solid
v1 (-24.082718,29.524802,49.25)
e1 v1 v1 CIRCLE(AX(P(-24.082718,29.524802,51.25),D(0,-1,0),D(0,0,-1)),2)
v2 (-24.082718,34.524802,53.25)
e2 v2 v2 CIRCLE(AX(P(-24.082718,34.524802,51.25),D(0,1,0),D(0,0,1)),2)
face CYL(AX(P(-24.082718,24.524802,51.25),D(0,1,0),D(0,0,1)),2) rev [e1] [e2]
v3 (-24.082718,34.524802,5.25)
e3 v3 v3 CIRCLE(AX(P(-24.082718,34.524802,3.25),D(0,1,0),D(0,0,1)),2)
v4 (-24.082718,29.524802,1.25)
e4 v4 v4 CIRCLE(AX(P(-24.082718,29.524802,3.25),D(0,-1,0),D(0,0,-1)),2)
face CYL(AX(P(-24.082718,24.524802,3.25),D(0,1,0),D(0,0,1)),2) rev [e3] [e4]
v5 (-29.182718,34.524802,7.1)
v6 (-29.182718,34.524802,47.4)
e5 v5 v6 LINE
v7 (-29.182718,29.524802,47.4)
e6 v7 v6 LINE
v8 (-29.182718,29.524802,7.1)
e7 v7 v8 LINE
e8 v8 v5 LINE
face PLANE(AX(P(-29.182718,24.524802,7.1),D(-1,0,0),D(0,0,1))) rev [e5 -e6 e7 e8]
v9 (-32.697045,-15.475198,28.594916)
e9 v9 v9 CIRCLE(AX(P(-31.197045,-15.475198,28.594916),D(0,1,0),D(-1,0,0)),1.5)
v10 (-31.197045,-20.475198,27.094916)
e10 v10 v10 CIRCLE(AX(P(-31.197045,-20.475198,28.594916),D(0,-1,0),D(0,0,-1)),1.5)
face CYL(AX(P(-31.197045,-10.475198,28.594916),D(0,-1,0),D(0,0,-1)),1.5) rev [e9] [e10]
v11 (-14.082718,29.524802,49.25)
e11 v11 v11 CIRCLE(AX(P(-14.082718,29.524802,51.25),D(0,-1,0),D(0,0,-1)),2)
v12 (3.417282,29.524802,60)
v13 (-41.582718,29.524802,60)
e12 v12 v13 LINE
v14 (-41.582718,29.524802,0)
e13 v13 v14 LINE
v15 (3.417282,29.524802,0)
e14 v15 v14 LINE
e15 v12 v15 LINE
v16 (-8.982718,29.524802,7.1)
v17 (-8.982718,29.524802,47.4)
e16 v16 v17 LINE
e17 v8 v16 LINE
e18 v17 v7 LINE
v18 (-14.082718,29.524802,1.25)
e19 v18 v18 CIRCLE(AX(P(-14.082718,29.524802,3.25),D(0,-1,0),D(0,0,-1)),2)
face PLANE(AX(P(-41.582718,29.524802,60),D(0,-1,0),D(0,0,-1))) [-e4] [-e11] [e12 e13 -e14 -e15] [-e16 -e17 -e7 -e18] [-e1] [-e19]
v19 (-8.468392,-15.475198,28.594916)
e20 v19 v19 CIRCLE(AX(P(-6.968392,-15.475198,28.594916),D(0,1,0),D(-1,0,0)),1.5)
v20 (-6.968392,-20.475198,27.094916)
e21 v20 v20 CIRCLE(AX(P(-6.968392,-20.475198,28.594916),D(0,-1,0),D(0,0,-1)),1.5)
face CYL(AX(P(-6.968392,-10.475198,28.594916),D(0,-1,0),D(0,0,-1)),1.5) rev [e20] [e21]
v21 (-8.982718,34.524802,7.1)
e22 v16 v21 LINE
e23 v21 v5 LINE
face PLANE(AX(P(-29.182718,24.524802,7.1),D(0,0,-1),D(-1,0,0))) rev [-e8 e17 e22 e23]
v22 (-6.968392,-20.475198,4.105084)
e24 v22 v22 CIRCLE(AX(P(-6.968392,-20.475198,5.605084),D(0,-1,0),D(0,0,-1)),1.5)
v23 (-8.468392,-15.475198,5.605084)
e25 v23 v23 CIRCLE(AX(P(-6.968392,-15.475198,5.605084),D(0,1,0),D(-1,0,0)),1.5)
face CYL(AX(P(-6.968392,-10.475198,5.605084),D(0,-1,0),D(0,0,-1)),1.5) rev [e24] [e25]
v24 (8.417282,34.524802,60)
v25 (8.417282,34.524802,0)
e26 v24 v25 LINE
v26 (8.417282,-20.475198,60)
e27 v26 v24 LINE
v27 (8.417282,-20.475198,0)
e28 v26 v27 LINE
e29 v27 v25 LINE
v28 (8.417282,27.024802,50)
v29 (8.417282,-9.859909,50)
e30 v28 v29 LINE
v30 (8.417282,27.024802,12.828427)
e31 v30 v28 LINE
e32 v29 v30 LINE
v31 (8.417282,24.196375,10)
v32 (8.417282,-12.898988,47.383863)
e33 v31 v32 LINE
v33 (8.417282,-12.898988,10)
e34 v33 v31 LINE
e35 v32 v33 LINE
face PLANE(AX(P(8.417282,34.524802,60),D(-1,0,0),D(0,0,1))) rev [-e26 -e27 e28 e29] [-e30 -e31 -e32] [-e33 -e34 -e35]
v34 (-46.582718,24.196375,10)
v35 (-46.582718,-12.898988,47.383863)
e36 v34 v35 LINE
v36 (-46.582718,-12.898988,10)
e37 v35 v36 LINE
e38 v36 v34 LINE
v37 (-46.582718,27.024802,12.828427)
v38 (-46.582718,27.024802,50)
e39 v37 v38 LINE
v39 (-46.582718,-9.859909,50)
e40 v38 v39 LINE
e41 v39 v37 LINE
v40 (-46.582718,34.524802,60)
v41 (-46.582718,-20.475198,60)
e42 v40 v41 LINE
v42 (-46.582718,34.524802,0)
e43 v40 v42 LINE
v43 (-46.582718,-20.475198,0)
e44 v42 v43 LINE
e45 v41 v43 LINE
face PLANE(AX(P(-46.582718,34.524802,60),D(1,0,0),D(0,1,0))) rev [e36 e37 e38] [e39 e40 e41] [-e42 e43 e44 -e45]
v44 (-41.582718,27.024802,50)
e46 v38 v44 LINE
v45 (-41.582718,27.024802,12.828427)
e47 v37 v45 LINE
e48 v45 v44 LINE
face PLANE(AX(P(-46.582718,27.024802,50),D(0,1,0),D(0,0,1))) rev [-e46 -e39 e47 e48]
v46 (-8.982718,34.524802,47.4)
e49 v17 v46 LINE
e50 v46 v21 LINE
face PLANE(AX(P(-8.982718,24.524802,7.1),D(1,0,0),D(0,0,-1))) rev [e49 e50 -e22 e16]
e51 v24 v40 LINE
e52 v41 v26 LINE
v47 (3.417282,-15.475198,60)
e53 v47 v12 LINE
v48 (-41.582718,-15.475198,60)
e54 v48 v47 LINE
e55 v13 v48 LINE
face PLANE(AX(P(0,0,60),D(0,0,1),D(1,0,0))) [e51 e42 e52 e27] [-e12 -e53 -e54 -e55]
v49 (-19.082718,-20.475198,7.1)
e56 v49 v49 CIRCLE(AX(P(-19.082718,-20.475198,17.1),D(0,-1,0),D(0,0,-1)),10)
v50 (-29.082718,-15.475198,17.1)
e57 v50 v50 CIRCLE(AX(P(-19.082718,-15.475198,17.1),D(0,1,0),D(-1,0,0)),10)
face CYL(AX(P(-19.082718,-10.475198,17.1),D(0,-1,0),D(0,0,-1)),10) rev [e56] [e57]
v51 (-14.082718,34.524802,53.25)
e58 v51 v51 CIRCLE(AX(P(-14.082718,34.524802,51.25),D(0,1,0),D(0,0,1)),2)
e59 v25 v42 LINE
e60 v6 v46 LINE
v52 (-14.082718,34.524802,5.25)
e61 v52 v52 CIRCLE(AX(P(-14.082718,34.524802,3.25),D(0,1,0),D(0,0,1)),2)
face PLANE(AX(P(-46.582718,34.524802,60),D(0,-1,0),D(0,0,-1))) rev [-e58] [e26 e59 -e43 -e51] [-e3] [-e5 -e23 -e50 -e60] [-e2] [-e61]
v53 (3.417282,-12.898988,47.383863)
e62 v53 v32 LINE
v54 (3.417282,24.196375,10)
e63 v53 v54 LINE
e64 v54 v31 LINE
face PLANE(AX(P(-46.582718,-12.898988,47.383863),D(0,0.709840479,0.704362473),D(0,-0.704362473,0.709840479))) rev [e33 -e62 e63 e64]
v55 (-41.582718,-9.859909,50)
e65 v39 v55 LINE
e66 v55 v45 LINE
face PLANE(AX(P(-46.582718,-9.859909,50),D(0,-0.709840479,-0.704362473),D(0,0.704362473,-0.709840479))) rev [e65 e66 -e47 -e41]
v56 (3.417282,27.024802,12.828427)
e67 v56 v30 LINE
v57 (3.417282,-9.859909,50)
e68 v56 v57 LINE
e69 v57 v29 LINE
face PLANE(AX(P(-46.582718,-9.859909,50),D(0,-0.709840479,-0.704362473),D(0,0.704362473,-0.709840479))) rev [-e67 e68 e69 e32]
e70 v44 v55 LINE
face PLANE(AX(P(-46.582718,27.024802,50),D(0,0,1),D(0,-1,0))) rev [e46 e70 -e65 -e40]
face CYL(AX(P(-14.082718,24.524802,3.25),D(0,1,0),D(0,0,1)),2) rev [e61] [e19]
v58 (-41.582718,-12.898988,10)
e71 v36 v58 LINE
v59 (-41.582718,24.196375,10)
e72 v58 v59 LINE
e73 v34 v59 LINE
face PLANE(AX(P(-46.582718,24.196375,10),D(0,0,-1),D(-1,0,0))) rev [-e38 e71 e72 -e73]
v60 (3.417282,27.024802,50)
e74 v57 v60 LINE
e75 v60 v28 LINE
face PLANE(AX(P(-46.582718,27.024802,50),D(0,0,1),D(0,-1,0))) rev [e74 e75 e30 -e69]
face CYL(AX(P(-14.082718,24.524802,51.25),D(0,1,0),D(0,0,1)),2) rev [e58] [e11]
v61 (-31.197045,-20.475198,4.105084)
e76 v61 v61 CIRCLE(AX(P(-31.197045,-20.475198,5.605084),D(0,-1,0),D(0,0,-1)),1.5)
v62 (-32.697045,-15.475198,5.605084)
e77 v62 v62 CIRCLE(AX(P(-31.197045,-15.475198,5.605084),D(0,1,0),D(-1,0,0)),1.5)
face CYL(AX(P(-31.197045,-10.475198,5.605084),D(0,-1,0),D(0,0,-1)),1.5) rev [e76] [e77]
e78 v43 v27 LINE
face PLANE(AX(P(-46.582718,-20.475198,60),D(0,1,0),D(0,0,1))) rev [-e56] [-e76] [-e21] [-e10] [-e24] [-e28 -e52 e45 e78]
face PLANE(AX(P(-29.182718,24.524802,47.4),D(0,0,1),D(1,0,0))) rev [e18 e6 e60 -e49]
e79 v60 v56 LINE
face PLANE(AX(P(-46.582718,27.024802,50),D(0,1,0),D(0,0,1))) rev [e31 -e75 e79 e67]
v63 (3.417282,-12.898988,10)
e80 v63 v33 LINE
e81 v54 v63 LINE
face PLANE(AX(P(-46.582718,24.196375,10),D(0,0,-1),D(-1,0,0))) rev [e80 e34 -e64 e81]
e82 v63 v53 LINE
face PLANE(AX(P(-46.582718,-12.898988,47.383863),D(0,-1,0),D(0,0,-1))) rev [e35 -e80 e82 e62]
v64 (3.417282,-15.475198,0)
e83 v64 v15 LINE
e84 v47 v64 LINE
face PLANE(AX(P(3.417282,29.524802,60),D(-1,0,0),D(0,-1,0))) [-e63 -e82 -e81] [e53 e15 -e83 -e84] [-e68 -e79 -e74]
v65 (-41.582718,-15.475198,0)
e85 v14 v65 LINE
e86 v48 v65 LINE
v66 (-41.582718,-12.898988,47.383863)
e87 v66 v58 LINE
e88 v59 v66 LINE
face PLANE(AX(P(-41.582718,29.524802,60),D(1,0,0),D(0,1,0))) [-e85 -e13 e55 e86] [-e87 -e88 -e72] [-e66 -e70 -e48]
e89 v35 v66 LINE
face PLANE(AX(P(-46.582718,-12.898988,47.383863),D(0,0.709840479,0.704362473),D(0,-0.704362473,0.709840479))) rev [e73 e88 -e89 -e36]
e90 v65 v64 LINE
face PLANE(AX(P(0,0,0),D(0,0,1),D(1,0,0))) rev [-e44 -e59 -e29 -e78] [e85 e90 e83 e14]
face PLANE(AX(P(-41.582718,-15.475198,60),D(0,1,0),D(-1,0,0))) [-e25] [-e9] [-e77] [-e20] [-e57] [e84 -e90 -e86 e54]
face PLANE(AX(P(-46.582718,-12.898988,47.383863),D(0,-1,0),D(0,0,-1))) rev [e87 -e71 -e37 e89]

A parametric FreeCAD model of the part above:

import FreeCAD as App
import Part
import Sketcher
from FreeCAD import Vector

doc = App.newDocument("Part")
body = doc.addObject("PartDesign::Body", "Body")

sketch1 = doc.addObject("Sketcher::SketchObject", "Sketch")
body.addObject(sketch1)
sketch1.AttachmentSupport = (doc.XY_Plane, [""])
sketch1.MapMode = "FlatFace"
sketch1.addGeometry(Part.LineSegment(Vector(-47, 35, 0), Vector(-47, -20, 0)), False)
sketch1.addGeometry(Part.LineSegment(Vector(-47, -20, 0), Vector(8, -20, 0)), False)
sketch1.addGeometry(Part.LineSegment(Vector(8, -20, 0), Vector(8, 35, 0)), False)
sketch1.addGeometry(Part.LineSegment(Vector(8, 35, 0), Vector(-47, 35, 0)), False)
sketch1.addGeometry(Part.LineSegment(Vector(3, -15, 0), Vector(-42, -15, 0)), False)
sketch1.addGeometry(Part.LineSegment(Vector(-42, -15, 0), Vector(-42, 30, 0)), False)
sketch1.addGeometry(Part.LineSegment(Vector(-42, 30, 0), Vector(3, 30, 0)), False)
sketch1.addGeometry(Part.LineSegment(Vector(3, 30, 0), Vector(3, -15, 0)), False)
sketch1.addConstraint(Sketcher.Constraint("Coincident", 0, 2, 1, 1))
sketch1.addConstraint(Sketcher.Constraint("Coincident", 1, 2, 2, 1))
sketch1.addConstraint(Sketcher.Constraint("Coincident", 2, 2, 3, 1))
sketch1.addConstraint(Sketcher.Constraint("Coincident", 3, 2, 0, 1))
sketch1.addConstraint(Sketcher.Constraint("Coincident", 4, 2, 5, 1))
sketch1.addConstraint(Sketcher.Constraint("Coincident", 5, 2, 6, 1))
sketch1.addConstraint(Sketcher.Constraint("Coincident", 6, 2, 7, 1))
sketch1.addConstraint(Sketcher.Constraint("Coincident", 7, 2, 4, 1))
sketch1.addConstraint(Sketcher.Constraint("Vertical", 0))
sketch1.addConstraint(Sketcher.Constraint("Horizontal", 1))
sketch1.addConstraint(Sketcher.Constraint("Vertical", 2))
sketch1.addConstraint(Sketcher.Constraint("Horizontal", 3))
sketch1.addConstraint(Sketcher.Constraint("Horizontal", 4))
sketch1.addConstraint(Sketcher.Constraint("Vertical", 5))
sketch1.addConstraint(Sketcher.Constraint("Horizontal", 6))
sketch1.addConstraint(Sketcher.Constraint("Vertical", 7))
sketch1.addConstraint(Sketcher.Constraint("Equal", 3, 0))
sketch1.addConstraint(Sketcher.Constraint("Equal", 6, 5))
sketch1.addConstraint(Sketcher.Constraint("DistanceX", 1, 1, 1, 2, 55.0))
sketch1.addConstraint(Sketcher.Constraint("DistanceX", 4, 2, 4, 1, 45.0))
sketch1.addConstraint(Sketcher.Constraint("DistanceX", 0, 2, 4, 2, 5.0))
sketch1.addConstraint(Sketcher.Constraint("DistanceY", 0, 2, 4, 2, 5.0))
sketch1.addConstraint(Sketcher.Constraint("DistanceX", 0, 2, -1, 1, 46.582718))
sketch1.addConstraint(Sketcher.Constraint("DistanceY", 0, 2, -1, 1, 20.475198))
pad1 = doc.addObject("PartDesign::Pad", "Pad")
body.addObject(pad1)
pad1.Profile = sketch1
pad1.Length = 60

sketch2 = doc.addObject("Sketcher::SketchObject", "Sketch001")
body.addObject(sketch2)
sketch2.AttachmentSupport = (doc.XZ_Plane, [""])
sketch2.MapMode = "FlatFace"
sketch2.AttachmentOffset = App.Placement(Vector(0, 0, -34.524802), App.Rotation())
sketch2.addGeometry(Part.Circle(Vector(-24.1, 3.2, 0), Vector(0, 0, 1), 2), False)
sketch2.addGeometry(Part.Circle(Vector(-14.1, 3.2, 0), Vector(0, 0, 1), 2), False)
sketch2.addGeometry(Part.Circle(Vector(-24.1, 51.2, 0), Vector(0, 0, 1), 2), False)
sketch2.addGeometry(Part.Circle(Vector(-14.1, 51.2, 0), Vector(0, 0, 1), 2), False)
sketch2.addGeometry(Part.LineSegment(Vector(-29.2, 7.1, 0), Vector(-29.2, 47.4, 0)), False)
sketch2.addGeometry(Part.LineSegment(Vector(-29.2, 47.4, 0), Vector(-9, 47.4, 0)), False)
sketch2.addGeometry(Part.LineSegment(Vector(-9, 47.4, 0), Vector(-9, 7.1, 0)), False)
sketch2.addGeometry(Part.LineSegment(Vector(-9, 7.1, 0), Vector(-29.2, 7.1, 0)), False)
sketch2.addConstraint(Sketcher.Constraint("Coincident", 4, 2, 5, 1))
sketch2.addConstraint(Sketcher.Constraint("Coincident", 5, 2, 6, 1))
sketch2.addConstraint(Sketcher.Constraint("Coincident", 6, 2, 7, 1))
sketch2.addConstraint(Sketcher.Constraint("Coincident", 7, 2, 4, 1))
sketch2.addConstraint(Sketcher.Constraint("Vertical", 4))
sketch2.addConstraint(Sketcher.Constraint("Horizontal", 5))
sketch2.addConstraint(Sketcher.Constraint("Vertical", 6))
sketch2.addConstraint(Sketcher.Constraint("Horizontal", 7))
sketch2.addConstraint(Sketcher.Constraint("Equal", 0, 1))
sketch2.addConstraint(Sketcher.Constraint("Equal", 1, 2))
sketch2.addConstraint(Sketcher.Constraint("Equal", 2, 3))
sketch2.addConstraint(Sketcher.Constraint("Horizontal", 0, 3, 1, 3))
sketch2.addConstraint(Sketcher.Constraint("Horizontal", 2, 3, 3, 3))
sketch2.addConstraint(Sketcher.Constraint("Vertical", 0, 3, 2, 3))
sketch2.addConstraint(Sketcher.Constraint("Vertical", 1, 3, 3, 3))
sketch2.addConstraint(Sketcher.Constraint("Diameter", 0, 4.0))
sketch2.addConstraint(Sketcher.Constraint("DistanceX", 5, 1, 5, 2, 20.2))
sketch2.addConstraint(Sketcher.Constraint("DistanceY", 4, 1, 4, 2, 40.3))
sketch2.addConstraint(Sketcher.Constraint("DistanceX", 0, 3, 1, 3, 10.0))
sketch2.addConstraint(Sketcher.Constraint("DistanceY", 0, 3, 2, 3, 48.0))
sketch2.addConstraint(Sketcher.Constraint("DistanceY", -1, 1, 4, 2, 47.4))
sketch2.addConstraint(Sketcher.Constraint("DistanceX", 4, 2, 2, 3, 5.1))
sketch2.addConstraint(Sketcher.Constraint("DistanceY", -1, 1, 0, 3, 3.25))
sketch2.addConstraint(Sketcher.Constraint("DistanceX", 0, 3, -1, 1, 24.082718))
pocket1 = doc.addObject("PartDesign::Pocket", "Pocket")
body.addObject(pocket1)
pocket1.Profile = sketch2
pocket1.Length = 10
pocket1.Reversed = True

sketch3 = doc.addObject("Sketcher::SketchObject", "Sketch002")
body.addObject(sketch3)
sketch3.AttachmentSupport = (doc.XZ_Plane, [""])
sketch3.MapMode = "FlatFace"
sketch3.AttachmentOffset = App.Placement(Vector(0, 0, 20.475198), App.Rotation())
sketch3.addGeometry(Part.Circle(Vector(-19.1, 17.1, 0), Vector(0, 0, 1), 10), False)
sketch3.addGeometry(Part.Circle(Vector(-31.2, 5.6, 0), Vector(0, 0, 1), 1.5), False)
sketch3.addGeometry(Part.Circle(Vector(-7, 5.6, 0), Vector(0, 0, 1), 1.5), False)
sketch3.addGeometry(Part.Circle(Vector(-31.2, 28.6, 0), Vector(0, 0, 1), 1.5), False)
sketch3.addGeometry(Part.Circle(Vector(-7, 28.6, 0), Vector(0, 0, 1), 1.5), False)
sketch3.addConstraint(Sketcher.Constraint("Equal", 1, 2))
sketch3.addConstraint(Sketcher.Constraint("Equal", 2, 3))
sketch3.addConstraint(Sketcher.Constraint("Equal", 3, 4))
sketch3.addConstraint(Sketcher.Constraint("Horizontal", 1, 3, 2, 3))
sketch3.addConstraint(Sketcher.Constraint("Horizontal", 3, 3, 4, 3))
sketch3.addConstraint(Sketcher.Constraint("Vertical", 1, 3, 3, 3))
sketch3.addConstraint(Sketcher.Constraint("Vertical", 2, 3, 4, 3))
sketch3.addConstraint(Sketcher.Constraint("Diameter", 0, 20.0))
sketch3.addConstraint(Sketcher.Constraint("Diameter", 1, 3.0))
sketch3.addConstraint(Sketcher.Constraint("DistanceY", -1, 1, 0, 3, 17.1))
sketch3.addConstraint(Sketcher.Constraint("DistanceX", 0, 3, -1, 1, 19.082718))
sketch3.addConstraint(Sketcher.Constraint("DistanceX", 2, 3, -1, 1, 6.968392))
sketch3.addConstraint(Sketcher.Constraint("DistanceY", 1, 3, 3, 3, 22.989832))
sketch3.addConstraint(Sketcher.Constraint("DistanceX", 1, 3, -1, 1, 31.197045))
sketch3.addConstraint(Sketcher.Constraint("DistanceY", -1, 1, 1, 3, 5.605084))
pocket2 = doc.addObject("PartDesign::Pocket", "Pocket001")
body.addObject(pocket2)
pocket2.Profile = sketch3
pocket2.Length = 10

sketch4 = doc.addObject("Sketcher::SketchObject", "Sketch003")
body.addObject(sketch4)
sketch4.AttachmentSupport = (doc.YZ_Plane, [""])
sketch4.MapMode = "FlatFace"
sketch4.AttachmentOffset = App.Placement(Vector(0, 0, 8.417282), App.Rotation())
sketch4.addGeometry(Part.LineSegment(Vector(27, 13, 0), Vector(27, 50, 0)), False)
sketch4.addGeometry(Part.LineSegment(Vector(27, 50, 0), Vector(-10, 50, 0)), False)
sketch4.addGeometry(Part.LineSegment(Vector(-10, 50, 0), Vector(27, 13, 0)), False)
sketch4.addGeometry(Part.LineSegment(Vector(-13, 47, 0), Vector(-13, 10, 0)), False)
sketch4.addGeometry(Part.LineSegment(Vector(-13, 10, 0), Vector(24, 10, 0)), False)
sketch4.addGeometry(Part.LineSegment(Vector(24, 10, 0), Vector(-13, 47, 0)), False)
sketch4.addConstraint(Sketcher.Constraint("Coincident", 0, 2, 1, 1))
sketch4.addConstraint(Sketcher.Constraint("Coincident", 1, 2, 2, 1))
sketch4.addConstraint(Sketcher.Constraint("Coincident", 2, 2, 0, 1))
sketch4.addConstraint(Sketcher.Constraint("Coincident", 3, 2, 4, 1))
sketch4.addConstraint(Sketcher.Constraint("Coincident", 4, 2, 5, 1))
sketch4.addConstraint(Sketcher.Constraint("Coincident", 5, 2, 3, 1))
sketch4.addConstraint(Sketcher.Constraint("Vertical", 0))
sketch4.addConstraint(Sketcher.Constraint("Horizontal", 1))
sketch4.addConstraint(Sketcher.Constraint("Vertical", 3))
sketch4.addConstraint(Sketcher.Constraint("Horizontal", 4))
sketch4.addConstraint(Sketcher.Constraint("Parallel", 2, 5))
sketch4.addConstraint(Sketcher.Constraint("DistanceY", -1, 1, 0, 2, 50.0))
sketch4.addConstraint(Sketcher.Constraint("DistanceY", -1, 1, 3, 2, 10.0))
sketch4.addConstraint(Sketcher.Constraint("DistanceX", 1, 2, 1, 1, 36.884711))
sketch4.addConstraint(Sketcher.Constraint("Distance", 5, 52.665161))
sketch4.addConstraint(Sketcher.Constraint("DistanceX", 4, 1, 4, 2, 37.095363))
sketch4.addConstraint(Sketcher.Constraint("DistanceX", 1, 2, -1, 1, 9.859909))
sketch4.addConstraint(Sketcher.Constraint("DistanceX", 3, 2, -1, 1, 12.898988))
pocket3 = doc.addObject("PartDesign::Pocket", "Pocket002")
body.addObject(pocket3)
pocket3.Profile = sketch4
pocket3.Type = "ThroughAll"

doc.recompute()
